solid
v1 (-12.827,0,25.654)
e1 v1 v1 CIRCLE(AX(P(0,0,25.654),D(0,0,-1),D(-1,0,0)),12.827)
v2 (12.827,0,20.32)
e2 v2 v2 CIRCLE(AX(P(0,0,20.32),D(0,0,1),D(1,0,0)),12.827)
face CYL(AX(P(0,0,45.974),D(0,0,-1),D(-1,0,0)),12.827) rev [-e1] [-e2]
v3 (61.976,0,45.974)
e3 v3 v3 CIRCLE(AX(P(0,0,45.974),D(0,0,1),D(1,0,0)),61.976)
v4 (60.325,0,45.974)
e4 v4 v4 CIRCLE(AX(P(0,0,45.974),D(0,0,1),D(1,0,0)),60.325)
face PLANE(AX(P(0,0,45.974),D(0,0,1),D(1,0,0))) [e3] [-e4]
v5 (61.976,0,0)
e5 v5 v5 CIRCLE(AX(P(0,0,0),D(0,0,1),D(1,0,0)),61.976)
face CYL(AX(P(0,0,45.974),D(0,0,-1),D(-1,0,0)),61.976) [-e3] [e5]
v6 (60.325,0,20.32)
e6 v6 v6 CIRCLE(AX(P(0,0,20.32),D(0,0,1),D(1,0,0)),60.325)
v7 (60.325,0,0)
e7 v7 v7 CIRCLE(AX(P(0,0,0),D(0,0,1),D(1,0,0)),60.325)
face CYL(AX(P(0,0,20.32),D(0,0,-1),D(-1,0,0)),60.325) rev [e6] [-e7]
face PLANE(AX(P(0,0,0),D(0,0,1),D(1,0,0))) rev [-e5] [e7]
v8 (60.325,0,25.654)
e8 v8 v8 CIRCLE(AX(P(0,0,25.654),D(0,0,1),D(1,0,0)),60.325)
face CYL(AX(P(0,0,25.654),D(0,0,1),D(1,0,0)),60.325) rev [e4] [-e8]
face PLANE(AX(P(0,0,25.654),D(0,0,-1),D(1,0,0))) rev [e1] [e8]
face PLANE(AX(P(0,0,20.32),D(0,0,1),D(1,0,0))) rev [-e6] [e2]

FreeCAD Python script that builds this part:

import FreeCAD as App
import Part
import Sketcher
from FreeCAD import Vector
Q = App.Units.Quantity

doc = App.newDocument("Part")
body = doc.addObject("PartDesign::Body", "Body")

# Sketch on XY plane
sketch1 = body.newObject("Sketcher::SketchObject", "Sketch")
sketch1.AttachmentSupport = (doc.getObject("XY_Plane"), [""])
sketch1.MapMode = "FlatFace"
sketch1.addGeometry(Part.Circle(Vector(0, 0, 0), Vector(0, 0, 1), 62), False)
sketch1.addGeometry(Part.Circle(Vector(0, 0, 0), Vector(0, 0, 1), 13), False)
sketch1.addConstraint(Sketcher.Constraint("Coincident", 0, 3, -1, 1))
sketch1.addConstraint(Sketcher.Constraint("Coincident", 1, 3, -1, 1))
sketch1.addConstraint(Sketcher.Constraint("Diameter", 0, Q("4.88 in")))
sketch1.addConstraint(Sketcher.Constraint("Diameter", 1, Q("1.01 in")))
pad1 = body.newObject("PartDesign::Pad", "Pad")
pad1.Profile = sketch1
pad1.Length = Q("1.81 in")

# Sketch on XY plane
sketch2 = body.newObject("Sketcher::SketchObject", "Sketch001")
sketch2.AttachmentSupport = (doc.getObject("XY_Plane"), [""])
sketch2.MapMode = "FlatFace"
sketch2.addGeometry(Part.Circle(Vector(0, 0, 0), Vector(0, 0, 1), 60), False)
sketch2.addConstraint(Sketcher.Constraint("Coincident", 0, 3, -1, 1))
sketch2.addConstraint(Sketcher.Constraint("Diameter", 0, Q("4.75 in")))
pocket1 = body.newObject("PartDesign::Pocket", "Pocket")
pocket1.Profile = sketch2
pocket1.Length = Q("0.8 in")
pocket1.Reversed = True
doc.recompute()

datumplane = body.newObject("PartDesign::Plane", "DatumPlane")
datumplane.AttachmentSupport = (doc.getObject("XY_Plane"), [""])
datumplane.MapMode = "FlatFace"
datumplane.AttachmentOffset = App.Placement(Vector(0, 0, 0.905 * 25.4), App.Rotation())
mirrored = body.newObject("PartDesign::Mirrored", "Mirrored")
mirrored.Originals = [pocket1]
mirrored.MirrorPlane = (datumplane, [""])
body.Tip = mirrored

doc.recompute()
